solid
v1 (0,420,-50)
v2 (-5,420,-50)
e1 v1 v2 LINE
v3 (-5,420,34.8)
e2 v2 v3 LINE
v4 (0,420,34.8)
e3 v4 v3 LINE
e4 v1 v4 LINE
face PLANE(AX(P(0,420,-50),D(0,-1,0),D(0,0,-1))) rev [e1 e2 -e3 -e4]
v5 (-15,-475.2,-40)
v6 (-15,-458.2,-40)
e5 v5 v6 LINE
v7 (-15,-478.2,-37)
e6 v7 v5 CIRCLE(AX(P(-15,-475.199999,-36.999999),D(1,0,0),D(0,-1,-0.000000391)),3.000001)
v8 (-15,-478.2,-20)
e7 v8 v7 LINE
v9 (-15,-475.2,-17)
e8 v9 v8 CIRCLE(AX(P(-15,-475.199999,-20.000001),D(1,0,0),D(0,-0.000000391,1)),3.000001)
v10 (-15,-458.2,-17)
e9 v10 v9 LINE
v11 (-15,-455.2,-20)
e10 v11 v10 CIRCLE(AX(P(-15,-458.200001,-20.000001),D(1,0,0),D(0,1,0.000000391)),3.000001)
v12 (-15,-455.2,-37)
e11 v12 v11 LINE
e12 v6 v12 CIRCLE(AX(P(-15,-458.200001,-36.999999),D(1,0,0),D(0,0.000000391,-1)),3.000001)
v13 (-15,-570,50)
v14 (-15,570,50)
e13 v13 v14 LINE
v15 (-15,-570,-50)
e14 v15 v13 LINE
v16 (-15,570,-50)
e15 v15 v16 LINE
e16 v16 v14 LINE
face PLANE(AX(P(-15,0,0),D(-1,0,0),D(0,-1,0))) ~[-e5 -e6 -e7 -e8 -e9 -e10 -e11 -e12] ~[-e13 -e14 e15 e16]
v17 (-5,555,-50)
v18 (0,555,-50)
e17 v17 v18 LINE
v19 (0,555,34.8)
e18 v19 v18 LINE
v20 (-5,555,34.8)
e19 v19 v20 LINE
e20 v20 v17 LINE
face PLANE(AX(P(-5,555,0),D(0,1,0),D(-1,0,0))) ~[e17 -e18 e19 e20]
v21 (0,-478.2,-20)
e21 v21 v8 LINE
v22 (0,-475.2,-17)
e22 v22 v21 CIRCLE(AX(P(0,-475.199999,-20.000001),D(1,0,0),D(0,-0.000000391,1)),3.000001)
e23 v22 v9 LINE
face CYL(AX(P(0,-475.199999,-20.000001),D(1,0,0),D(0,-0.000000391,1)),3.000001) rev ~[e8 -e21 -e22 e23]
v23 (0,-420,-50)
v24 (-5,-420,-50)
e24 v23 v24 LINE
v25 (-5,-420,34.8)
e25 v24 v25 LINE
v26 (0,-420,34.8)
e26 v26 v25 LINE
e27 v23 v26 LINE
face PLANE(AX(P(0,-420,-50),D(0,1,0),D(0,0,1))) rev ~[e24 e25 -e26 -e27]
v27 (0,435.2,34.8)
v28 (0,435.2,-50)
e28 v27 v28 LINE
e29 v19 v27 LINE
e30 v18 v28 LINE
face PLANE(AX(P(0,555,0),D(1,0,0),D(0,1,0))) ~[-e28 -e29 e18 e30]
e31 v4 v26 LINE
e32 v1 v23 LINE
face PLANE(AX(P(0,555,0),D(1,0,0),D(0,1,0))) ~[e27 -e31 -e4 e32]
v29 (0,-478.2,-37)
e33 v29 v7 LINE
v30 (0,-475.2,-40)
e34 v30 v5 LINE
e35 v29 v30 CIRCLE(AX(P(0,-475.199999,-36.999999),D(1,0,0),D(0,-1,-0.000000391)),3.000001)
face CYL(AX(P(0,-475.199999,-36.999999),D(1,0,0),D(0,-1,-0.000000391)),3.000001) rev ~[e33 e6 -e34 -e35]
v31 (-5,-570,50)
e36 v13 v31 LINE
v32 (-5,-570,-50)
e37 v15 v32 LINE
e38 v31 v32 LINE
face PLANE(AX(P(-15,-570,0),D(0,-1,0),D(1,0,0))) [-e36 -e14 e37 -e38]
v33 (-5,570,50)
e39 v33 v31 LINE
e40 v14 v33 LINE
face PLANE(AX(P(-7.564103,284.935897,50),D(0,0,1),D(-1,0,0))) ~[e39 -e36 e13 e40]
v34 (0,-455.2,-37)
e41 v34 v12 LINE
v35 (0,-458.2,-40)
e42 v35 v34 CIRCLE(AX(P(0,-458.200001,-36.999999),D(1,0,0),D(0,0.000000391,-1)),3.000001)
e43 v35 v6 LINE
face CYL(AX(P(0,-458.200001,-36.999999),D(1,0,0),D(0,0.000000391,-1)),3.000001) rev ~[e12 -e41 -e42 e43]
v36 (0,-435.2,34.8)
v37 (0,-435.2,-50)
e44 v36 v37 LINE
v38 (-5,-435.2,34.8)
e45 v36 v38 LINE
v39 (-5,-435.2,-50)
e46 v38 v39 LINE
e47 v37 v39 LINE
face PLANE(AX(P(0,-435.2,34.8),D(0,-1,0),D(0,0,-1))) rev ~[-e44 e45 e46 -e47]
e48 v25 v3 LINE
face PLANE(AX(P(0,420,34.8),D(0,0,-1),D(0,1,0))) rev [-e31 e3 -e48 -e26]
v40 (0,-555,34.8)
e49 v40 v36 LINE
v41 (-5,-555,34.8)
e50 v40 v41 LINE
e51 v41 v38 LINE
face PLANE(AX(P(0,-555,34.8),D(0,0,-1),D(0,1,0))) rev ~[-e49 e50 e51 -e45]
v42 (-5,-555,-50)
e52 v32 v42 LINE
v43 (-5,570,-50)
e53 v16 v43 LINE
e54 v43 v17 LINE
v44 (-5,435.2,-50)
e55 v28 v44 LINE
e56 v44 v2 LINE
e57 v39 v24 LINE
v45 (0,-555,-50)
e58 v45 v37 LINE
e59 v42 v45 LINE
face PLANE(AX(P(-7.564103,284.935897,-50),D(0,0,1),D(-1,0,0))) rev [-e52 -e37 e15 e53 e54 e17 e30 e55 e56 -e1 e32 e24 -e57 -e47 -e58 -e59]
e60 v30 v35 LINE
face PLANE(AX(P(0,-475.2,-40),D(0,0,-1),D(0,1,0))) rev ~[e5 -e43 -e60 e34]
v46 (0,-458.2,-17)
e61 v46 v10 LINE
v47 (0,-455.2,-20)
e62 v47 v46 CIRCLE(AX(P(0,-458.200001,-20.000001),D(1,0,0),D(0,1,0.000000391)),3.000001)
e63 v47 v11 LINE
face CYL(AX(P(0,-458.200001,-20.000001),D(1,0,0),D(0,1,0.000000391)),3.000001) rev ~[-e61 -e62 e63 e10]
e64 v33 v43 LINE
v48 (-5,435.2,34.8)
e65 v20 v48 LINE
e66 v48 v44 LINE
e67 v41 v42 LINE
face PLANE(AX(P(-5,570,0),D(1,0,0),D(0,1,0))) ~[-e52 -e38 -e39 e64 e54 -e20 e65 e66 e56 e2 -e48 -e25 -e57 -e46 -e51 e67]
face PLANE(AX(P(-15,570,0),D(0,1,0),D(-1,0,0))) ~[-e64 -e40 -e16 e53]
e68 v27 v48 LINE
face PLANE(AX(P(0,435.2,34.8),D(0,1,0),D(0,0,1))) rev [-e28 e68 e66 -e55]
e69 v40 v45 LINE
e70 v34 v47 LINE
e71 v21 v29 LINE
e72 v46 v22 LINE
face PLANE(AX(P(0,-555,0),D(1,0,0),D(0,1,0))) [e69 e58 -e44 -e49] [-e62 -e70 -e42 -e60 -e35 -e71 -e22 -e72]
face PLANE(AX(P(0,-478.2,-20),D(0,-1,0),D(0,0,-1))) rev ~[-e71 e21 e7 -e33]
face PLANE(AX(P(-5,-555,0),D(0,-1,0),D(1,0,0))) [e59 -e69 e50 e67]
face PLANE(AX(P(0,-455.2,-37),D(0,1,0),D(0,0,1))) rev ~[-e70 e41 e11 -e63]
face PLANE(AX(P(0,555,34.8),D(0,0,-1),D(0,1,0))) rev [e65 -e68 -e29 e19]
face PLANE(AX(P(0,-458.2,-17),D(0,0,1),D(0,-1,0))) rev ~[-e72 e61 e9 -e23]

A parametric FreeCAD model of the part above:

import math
import FreeCAD as App
import Part
import Sketcher


def add_polygon(sketch, points):
    """Adds a closed chain of lines whose ends are joined by coincident constraints."""
    first, n = sketch.GeometryCount, len(points)
    for a, b in zip(points, points[1:] + points[:1]):
        sketch.addGeometry(Part.LineSegment(App.Vector(*a, 0), App.Vector(*b, 0)), False)
    for i in range(n):
        sketch.addConstraint(Sketcher.Constraint("Coincident", first + i, 2, first + (i + 1) % n, 1))

doc = App.newDocument("Part")
params = doc.addObject("Spreadsheet::Sheet", "Params")
for row, (alias, value) in enumerate([
    ("sketch1_width", "15 mm"),
    ("sketch1_width2", "10 mm"),
    ("sketch1_height", "555 mm"),
    ("pad1_length", "100 mm"),
    ("sketch2_width", "420 mm"),
    ("sketch2_width2", "555 mm"),
    ("sketch2_width3", "15.2 mm"),
    ("sketch2_height", "84.8 mm"),
    ("pocket1_length", "5 mm"),
    ("sketch3_radius", "3.000001 mm"),
    ("sketch3_width", "17 mm"),
], start=1):
    params.set(f"A{row}", alias)
    params.set(f"B{row}", "=" + value)
    params.setAlias(f"B{row}", alias)

body = doc.addObject("PartDesign::Body", "Body")

# Sketch on XY plane
sketch1 = body.newObject("Sketcher::SketchObject", "Sketch")
sketch1.AttachmentSupport = (doc.getObject("XY_Plane"), [""])
sketch1.MapMode = "FlatFace"
add_polygon(sketch1, [(0, -555), (0, 0), (-15, 0), (-15, -570), (-5, -570), (-5, -555)])  # lines 0-5
sketch1.addConstraint([
    Sketcher.Constraint("Vertical", 0),
    Sketcher.Constraint("Horizontal", 1),
    Sketcher.Constraint("Vertical", 2),
    Sketcher.Constraint("Horizontal", 3),
    Sketcher.Constraint("Vertical", 4),
    Sketcher.Constraint("Horizontal", 5),
    Sketcher.Constraint("Coincident", 0, 2, -1, 1),
    Sketcher.Constraint("Equal", 1, 4),
    Sketcher.Constraint("DistanceX", 1, 2, 1, 1, 15.0),
    Sketcher.Constraint("DistanceX", 3, 1, 3, 2, 10.0),
    Sketcher.Constraint("DistanceY", 0, 1, 0, 2, 555.0),
])
sketch1.setExpression("Constraints[14]", "Params.sketch1_width")
sketch1.setExpression("Constraints[15]", "Params.sketch1_width2")
sketch1.setExpression("Constraints[16]", "Params.sketch1_height")
pad1 = body.newObject("PartDesign::Pad", "Pad")
pad1.Profile = sketch1
pad1.setExpression("Length", "Params.pad1_length")
pad1.Midplane = True

# Sketch on YZ plane
sketch2 = body.newObject("Sketcher::SketchObject", "Sketch001")
sketch2.AttachmentSupport = (doc.getObject("YZ_Plane"), [""])
sketch2.MapMode = "FlatFace"
add_polygon(sketch2, [(-435, 35), (-435, -50), (-420, -50), (-420, 35), (0, 35), (0, 50), (-555, 50), (-555, 35)])  # lines 0-7
sketch2.addConstraint([
    Sketcher.Constraint("Vertical", 0),
    Sketcher.Constraint("Horizontal", 1),
    Sketcher.Constraint("Vertical", 2),
    Sketcher.Constraint("Horizontal", 3),
    Sketcher.Constraint("Vertical", 4),
    Sketcher.Constraint("Horizontal", 5),
    Sketcher.Constraint("Vertical", 6),
    Sketcher.Constraint("Horizontal", 7),
    Sketcher.Constraint("PointOnObject", 3, 2, -2),
    Sketcher.Constraint("Horizontal", 3, 2, 6, 2),
    Sketcher.Constraint("Equal", 1, 4),
    Sketcher.Constraint("DistanceX", 3, 1, 3, 2, 420.0),
    Sketcher.Constraint("DistanceX", 5, 2, 5, 1, 555.0),
    Sketcher.Constraint("DistanceX", 1, 1, 1, 2, 15.2),
    Sketcher.Constraint("DistanceY", 0, 2, 0, 1, 84.8),
    Sketcher.Constraint("DistanceY", 0, 2, -1, 1, 50.0),
])
sketch2.setExpression("Constraints[19]", "Params.sketch2_width")
sketch2.setExpression("Constraints[20]", "Params.sketch2_width2")
sketch2.setExpression("Constraints[21]", "Params.sketch2_width3")
sketch2.setExpression("Constraints[22]", "Params.sketch2_height")
pocket1 = body.newObject("PartDesign::Pocket", "Pocket")
pocket1.Profile = sketch2
pocket1.setExpression("Length", "Params.pocket1_length")
body2 = doc.addObject("PartDesign::Body", "Body001")
doc.recompute()

body2.BaseFeature = body
doc.recompute()

mirroring = doc.addObject("Part::Mirroring", "Mirroring")
mirroring.Source = body
mirroring.Base = App.Vector(-7.766854, 0, -2.262921)
mirroring.Normal = App.Vector(0, 1, 0)
body3 = doc.addObject("PartDesign::Body", "Body002")
body3.BaseFeature = mirroring
boolean = body2.newObject("PartDesign::Boolean", "Boolean")
boolean.Type = "Fuse"
boolean.addObjects([body3])
doc.recompute()

# Sketch on YZ plane
sketch3 = body2.newObject("Sketcher::SketchObject", "Sketch002")
sketch3.AttachmentSupport = (doc.getObject("YZ_Plane001"), [""])
sketch3.MapMode = "FlatFace"
sketch3.addGeometry([
    Part.LineSegment(App.Vector(-478.2, -20, 0), App.Vector(-478.2, -37, 0)),  # 0
    Part.ArcOfCircle(Part.Circle(App.Vector(-475.2, -37, 0), App.Vector(0, 0, 1), 3), math.radians(-180), math.radians(-90)),  # 1
    Part.LineSegment(App.Vector(-475.2, -40, 0), App.Vector(-458.2, -40, 0)),  # 2
    Part.ArcOfCircle(Part.Circle(App.Vector(-458.2, -37, 0), App.Vector(0, 0, 1), 3), math.radians(-90), math.radians(0)),  # 3
    Part.LineSegment(App.Vector(-455.2, -37, 0), App.Vector(-455.2, -20, 0)),  # 4
    Part.ArcOfCircle(Part.Circle(App.Vector(-458.2, -20, 0), App.Vector(0, 0, 1), 3), math.radians(0), math.radians(90)),  # 5
    Part.LineSegment(App.Vector(-458.2, -17, 0), App.Vector(-475.2, -17, 0)),  # 6
    Part.ArcOfCircle(Part.Circle(App.Vector(-475.2, -20, 0), App.Vector(0, 0, 1), 3), math.radians(90), math.radians(180)),  # 7
], False)
sketch3.addConstraint([
    Sketcher.Constraint("Tangent", 0, 2, 1, 1),
    Sketcher.Constraint("Tangent", 1, 2, 2, 1),
    Sketcher.Constraint("Tangent", 2, 2, 3, 1),
    Sketcher.Constraint("Tangent", 3, 2, 4, 1),
    Sketcher.Constraint("Tangent", 4, 2, 5, 1),
    Sketcher.Constraint("Tangent", 5, 2, 6, 1),
    Sketcher.Constraint("Tangent", 6, 2, 7, 1),
    Sketcher.Constraint("Tangent", 7, 2, 0, 1),
    Sketcher.Constraint("Vertical", 0),
    Sketcher.Constraint("Horizontal", 2),
    Sketcher.Constraint("Vertical", 4),
    Sketcher.Constraint("Horizontal", 6),
    Sketcher.Constraint("Equal", 1, 3),
    Sketcher.Constraint("Equal", 3, 5),
    Sketcher.Constraint("Equal", 5, 7),
    Sketcher.Constraint("Equal", 6, 0),
    Sketcher.Constraint("Radius", 1, 3.000001),
    Sketcher.Constraint("DistanceX", 2, 1, 2, 2, 17.0),
    Sketcher.Constraint("DistanceY", 1, 3, -1, 1, 36.999999),
    Sketcher.Constraint("DistanceX", 1, 3, -1, 1, 475.199999),
])
sketch3.setExpression("Constraints[16]", "Params.sketch3_radius")
sketch3.setExpression("Constraints[17]", "Params.sketch3_width")
pocket2 = body2.newObject("PartDesign::Pocket", "Pocket001")
pocket2.Profile = sketch3
pocket2.Type = "ThroughAll"
mirroring.Visibility = False

doc.recompute()
